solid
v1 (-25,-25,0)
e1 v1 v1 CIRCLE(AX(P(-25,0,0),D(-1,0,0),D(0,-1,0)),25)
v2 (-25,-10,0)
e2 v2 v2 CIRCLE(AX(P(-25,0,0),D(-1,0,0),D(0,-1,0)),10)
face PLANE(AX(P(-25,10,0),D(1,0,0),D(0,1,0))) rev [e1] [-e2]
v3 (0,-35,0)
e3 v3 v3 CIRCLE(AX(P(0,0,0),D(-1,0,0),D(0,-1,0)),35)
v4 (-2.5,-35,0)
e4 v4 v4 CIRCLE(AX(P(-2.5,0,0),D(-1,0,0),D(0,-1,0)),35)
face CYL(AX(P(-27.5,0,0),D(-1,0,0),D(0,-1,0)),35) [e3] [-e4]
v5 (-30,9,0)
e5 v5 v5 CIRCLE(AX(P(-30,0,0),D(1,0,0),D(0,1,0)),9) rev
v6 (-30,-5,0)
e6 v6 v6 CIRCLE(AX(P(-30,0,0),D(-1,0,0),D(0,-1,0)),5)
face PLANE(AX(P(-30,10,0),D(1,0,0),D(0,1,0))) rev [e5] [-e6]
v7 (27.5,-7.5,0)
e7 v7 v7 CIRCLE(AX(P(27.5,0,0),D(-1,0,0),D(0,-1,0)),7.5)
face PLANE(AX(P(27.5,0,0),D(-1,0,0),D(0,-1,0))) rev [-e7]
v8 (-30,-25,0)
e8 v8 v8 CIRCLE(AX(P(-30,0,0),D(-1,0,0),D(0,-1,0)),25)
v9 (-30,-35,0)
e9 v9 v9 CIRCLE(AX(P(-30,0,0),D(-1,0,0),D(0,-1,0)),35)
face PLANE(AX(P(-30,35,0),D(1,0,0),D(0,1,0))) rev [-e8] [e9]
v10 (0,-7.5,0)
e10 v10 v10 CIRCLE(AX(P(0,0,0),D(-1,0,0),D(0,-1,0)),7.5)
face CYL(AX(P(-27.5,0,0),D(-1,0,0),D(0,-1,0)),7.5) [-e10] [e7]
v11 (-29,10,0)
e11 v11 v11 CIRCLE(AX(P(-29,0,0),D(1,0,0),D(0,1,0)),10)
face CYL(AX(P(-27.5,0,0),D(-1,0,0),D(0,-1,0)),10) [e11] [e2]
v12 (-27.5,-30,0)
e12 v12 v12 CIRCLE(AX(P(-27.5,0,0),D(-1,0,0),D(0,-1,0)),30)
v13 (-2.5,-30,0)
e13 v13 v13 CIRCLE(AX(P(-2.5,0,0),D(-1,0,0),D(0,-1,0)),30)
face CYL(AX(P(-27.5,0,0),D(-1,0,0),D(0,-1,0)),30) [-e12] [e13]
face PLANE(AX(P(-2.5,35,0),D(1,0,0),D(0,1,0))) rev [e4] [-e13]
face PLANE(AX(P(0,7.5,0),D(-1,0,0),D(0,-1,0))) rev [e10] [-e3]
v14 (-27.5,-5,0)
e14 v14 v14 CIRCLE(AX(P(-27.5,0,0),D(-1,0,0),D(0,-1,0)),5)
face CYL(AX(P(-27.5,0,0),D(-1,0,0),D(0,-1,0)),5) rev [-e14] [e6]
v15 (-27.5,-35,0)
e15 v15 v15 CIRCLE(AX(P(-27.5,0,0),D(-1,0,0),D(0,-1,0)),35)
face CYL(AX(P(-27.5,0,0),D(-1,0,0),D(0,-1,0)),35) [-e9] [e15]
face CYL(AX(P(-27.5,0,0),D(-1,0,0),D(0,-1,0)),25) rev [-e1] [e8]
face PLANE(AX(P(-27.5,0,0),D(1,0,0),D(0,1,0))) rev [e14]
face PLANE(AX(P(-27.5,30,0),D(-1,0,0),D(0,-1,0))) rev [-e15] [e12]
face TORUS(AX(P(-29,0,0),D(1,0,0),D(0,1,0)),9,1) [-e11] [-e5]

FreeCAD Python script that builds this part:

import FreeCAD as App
import Part
import Sketcher
from FreeCAD import Vector
Q = App.Units.Quantity


def edges_at(feature, points):
    """Names of the edges that pass closest to the given points."""
    edges = feature.Shape.Edges
    near = lambda p: min(range(len(edges)), key=lambda i: edges[i].distToShape(Part.Vertex(*p))[0])
    return sorted({f"Edge{near(p) + 1}" for p in points})

doc = App.newDocument("Part")
params = doc.addObject("Spreadsheet::Sheet", "Params")
for row, (alias, value) in enumerate([
    ("sketch1_width", "25 mm"),
    ("sketch1_width2", "5 mm"),
    ("sketch1_width3", "55 mm"),
    ("sketch1_height", "10 mm"),
    ("sketch1_height2", "15 mm"),
    ("revolution_angle", "360 deg"),
    ("fillet_radius", "1 mm"),
], start=1):
    params.set(f"A{row}", alias)
    params.set(f"B{row}", "=" + value)
    params.setAlias(f"B{row}", alias)

body = doc.addObject("PartDesign::Body", "Body")

sketch1 = doc.addObject("Sketcher::SketchObject", "Sketch")
body.addObject(sketch1)
sketch1.AttachmentSupport = (doc.XY_Plane, [""])
sketch1.MapMode = "FlatFace"
sketch1.addGeometry(Part.LineSegment(Vector(0, 7.5, 0), Vector(0, 35, 0)), False)
sketch1.addGeometry(Part.LineSegment(Vector(0, 35, 0), Vector(-2.5, 35, 0)), False)
sketch1.addGeometry(Part.LineSegment(Vector(-2.5, 35, 0), Vector(-2.5, 30, 0)), False)
sketch1.addGeometry(Part.LineSegment(Vector(-2.5, 30, 0), Vector(-27.5, 30, 0)), False)
sketch1.addGeometry(Part.LineSegment(Vector(-27.5, 30, 0), Vector(-27.5, 35, 0)), False)
sketch1.addGeometry(Part.LineSegment(Vector(-27.5, 35, 0), Vector(-30, 35, 0)), False)
sketch1.addGeometry(Part.LineSegment(Vector(-30, 35, 0), Vector(-30, 25, 0)), False)
sketch1.addGeometry(Part.LineSegment(Vector(-30, 25, 0), Vector(-25, 25, 0)), False)
sketch1.addGeometry(Part.LineSegment(Vector(-25, 25, 0), Vector(-25, 10, 0)), False)
sketch1.addGeometry(Part.LineSegment(Vector(-25, 10, 0), Vector(-30, 10, 0)), False)
sketch1.addGeometry(Part.LineSegment(Vector(-30, 10, 0), Vector(-30, 5, 0)), False)
sketch1.addGeometry(Part.LineSegment(Vector(-30, 5, 0), Vector(-27.5, 5, 0)), False)
sketch1.addGeometry(Part.LineSegment(Vector(-27.5, 5, 0), Vector(-27.5, 0, 0)), False)
sketch1.addGeometry(Part.LineSegment(Vector(-27.5, 0, 0), Vector(27.5, 0, 0)), False)
sketch1.addGeometry(Part.LineSegment(Vector(27.5, 0, 0), Vector(27.5, 7.5, 0)), False)
sketch1.addGeometry(Part.LineSegment(Vector(27.5, 7.5, 0), Vector(0, 7.5, 0)), False)
sketch1.addConstraint(Sketcher.Constraint("Coincident", 0, 2, 1, 1))
sketch1.addConstraint(Sketcher.Constraint("Coincident", 1, 2, 2, 1))
sketch1.addConstraint(Sketcher.Constraint("Coincident", 2, 2, 3, 1))
sketch1.addConstraint(Sketcher.Constraint("Coincident", 3, 2, 4, 1))
sketch1.addConstraint(Sketcher.Constraint("Coincident", 4, 2, 5, 1))
sketch1.addConstraint(Sketcher.Constraint("Coincident", 5, 2, 6, 1))
sketch1.addConstraint(Sketcher.Constraint("Coincident", 6, 2, 7, 1))
sketch1.addConstraint(Sketcher.Constraint("Coincident", 7, 2, 8, 1))
sketch1.addConstraint(Sketcher.Constraint("Coincident", 8, 2, 9, 1))
sketch1.addConstraint(Sketcher.Constraint("Coincident", 9, 2, 10, 1))
sketch1.addConstraint(Sketcher.Constraint("Coincident", 10, 2, 11, 1))
sketch1.addConstraint(Sketcher.Constraint("Coincident", 11, 2, 12, 1))
sketch1.addConstraint(Sketcher.Constraint("Coincident", 12, 2, 13, 1))
sketch1.addConstraint(Sketcher.Constraint("Coincident", 13, 2, 14, 1))
sketch1.addConstraint(Sketcher.Constraint("Coincident", 14, 2, 15, 1))
sketch1.addConstraint(Sketcher.Constraint("Coincident", 15, 2, 0, 1))
sketch1.addConstraint(Sketcher.Constraint("Vertical", 0))
sketch1.addConstraint(Sketcher.Constraint("Horizontal", 1))
sketch1.addConstraint(Sketcher.Constraint("Vertical", 2))
sketch1.addConstraint(Sketcher.Constraint("Horizontal", 3))
sketch1.addConstraint(Sketcher.Constraint("Vertical", 4))
sketch1.addConstraint(Sketcher.Constraint("Horizontal", 5))
sketch1.addConstraint(Sketcher.Constraint("Vertical", 6))
sketch1.addConstraint(Sketcher.Constraint("Horizontal", 7))
sketch1.addConstraint(Sketcher.Constraint("Vertical", 8))
sketch1.addConstraint(Sketcher.Constraint("Horizontal", 9))
sketch1.addConstraint(Sketcher.Constraint("Vertical", 10))
sketch1.addConstraint(Sketcher.Constraint("Horizontal", 11))
sketch1.addConstraint(Sketcher.Constraint("Vertical", 12))
sketch1.addConstraint(Sketcher.Constraint("Horizontal", 13))
sketch1.addConstraint(Sketcher.Constraint("Vertical", 14))
sketch1.addConstraint(Sketcher.Constraint("Horizontal", 15))
sketch1.addConstraint(Sketcher.Constraint("Symmetric", 12, 2, 13, 2, -1, 1))
sketch1.addConstraint(Sketcher.Constraint("PointOnObject", 0, 2, -2))
sketch1.addConstraint(Sketcher.Constraint("Horizontal", 1, 2, 4, 2))
sketch1.addConstraint(Sketcher.Constraint("Vertical", 6, 2, 9, 2))
sketch1.addConstraint(Sketcher.Constraint("Vertical", 4, 2, 11, 2))
sketch1.addConstraint(Sketcher.Constraint("Equal", 1, 5))
sketch1.addConstraint(Sketcher.Constraint("Equal", 15, 0))
sketch1.addConstraint(Sketcher.Constraint("Equal", 9, 2))
sketch1.addConstraint(Sketcher.Constraint("Equal", 4, 10))
sketch1.addConstraint(Sketcher.Constraint("Equal", 10, 12))
sketch1.addConstraint(Sketcher.Constraint("DistanceX", 3, 2, 3, 1, Q("25 mm")))
sketch1.addConstraint(Sketcher.Constraint("DistanceX", 7, 1, 7, 2, Q("5 mm")))
sketch1.addConstraint(Sketcher.Constraint("DistanceX", 13, 1, 13, 2, Q("55 mm")))
sketch1.addConstraint(Sketcher.Constraint("DistanceY", 6, 2, 6, 1, Q("10 mm")))
sketch1.addConstraint(Sketcher.Constraint("DistanceY", 8, 2, 8, 1, Q("15 mm")))
sketch1.setExpression("Constraints[42]", "Params.sketch1_width")
sketch1.setExpression("Constraints[43]", "Params.sketch1_width2")
sketch1.setExpression("Constraints[44]", "Params.sketch1_width3")
sketch1.setExpression("Constraints[45]", "Params.sketch1_height")
sketch1.setExpression("Constraints[46]", "Params.sketch1_height2")
revolution = doc.addObject("PartDesign::Revolution", "Revolution")
body.addObject(revolution)
revolution.Profile = sketch1
revolution.ReferenceAxis = (sketch1, ["H_Axis"])
revolution.setExpression("Angle", "Params.revolution_angle")
doc.recompute()

fillet = doc.addObject("PartDesign::Fillet", "Fillet")
body.addObject(fillet)
fillet.Base = (revolution, edges_at(revolution, [(-30, 10, 0)]))
fillet.setExpression("Radius", "Params.fillet_radius")

doc.recompute()
